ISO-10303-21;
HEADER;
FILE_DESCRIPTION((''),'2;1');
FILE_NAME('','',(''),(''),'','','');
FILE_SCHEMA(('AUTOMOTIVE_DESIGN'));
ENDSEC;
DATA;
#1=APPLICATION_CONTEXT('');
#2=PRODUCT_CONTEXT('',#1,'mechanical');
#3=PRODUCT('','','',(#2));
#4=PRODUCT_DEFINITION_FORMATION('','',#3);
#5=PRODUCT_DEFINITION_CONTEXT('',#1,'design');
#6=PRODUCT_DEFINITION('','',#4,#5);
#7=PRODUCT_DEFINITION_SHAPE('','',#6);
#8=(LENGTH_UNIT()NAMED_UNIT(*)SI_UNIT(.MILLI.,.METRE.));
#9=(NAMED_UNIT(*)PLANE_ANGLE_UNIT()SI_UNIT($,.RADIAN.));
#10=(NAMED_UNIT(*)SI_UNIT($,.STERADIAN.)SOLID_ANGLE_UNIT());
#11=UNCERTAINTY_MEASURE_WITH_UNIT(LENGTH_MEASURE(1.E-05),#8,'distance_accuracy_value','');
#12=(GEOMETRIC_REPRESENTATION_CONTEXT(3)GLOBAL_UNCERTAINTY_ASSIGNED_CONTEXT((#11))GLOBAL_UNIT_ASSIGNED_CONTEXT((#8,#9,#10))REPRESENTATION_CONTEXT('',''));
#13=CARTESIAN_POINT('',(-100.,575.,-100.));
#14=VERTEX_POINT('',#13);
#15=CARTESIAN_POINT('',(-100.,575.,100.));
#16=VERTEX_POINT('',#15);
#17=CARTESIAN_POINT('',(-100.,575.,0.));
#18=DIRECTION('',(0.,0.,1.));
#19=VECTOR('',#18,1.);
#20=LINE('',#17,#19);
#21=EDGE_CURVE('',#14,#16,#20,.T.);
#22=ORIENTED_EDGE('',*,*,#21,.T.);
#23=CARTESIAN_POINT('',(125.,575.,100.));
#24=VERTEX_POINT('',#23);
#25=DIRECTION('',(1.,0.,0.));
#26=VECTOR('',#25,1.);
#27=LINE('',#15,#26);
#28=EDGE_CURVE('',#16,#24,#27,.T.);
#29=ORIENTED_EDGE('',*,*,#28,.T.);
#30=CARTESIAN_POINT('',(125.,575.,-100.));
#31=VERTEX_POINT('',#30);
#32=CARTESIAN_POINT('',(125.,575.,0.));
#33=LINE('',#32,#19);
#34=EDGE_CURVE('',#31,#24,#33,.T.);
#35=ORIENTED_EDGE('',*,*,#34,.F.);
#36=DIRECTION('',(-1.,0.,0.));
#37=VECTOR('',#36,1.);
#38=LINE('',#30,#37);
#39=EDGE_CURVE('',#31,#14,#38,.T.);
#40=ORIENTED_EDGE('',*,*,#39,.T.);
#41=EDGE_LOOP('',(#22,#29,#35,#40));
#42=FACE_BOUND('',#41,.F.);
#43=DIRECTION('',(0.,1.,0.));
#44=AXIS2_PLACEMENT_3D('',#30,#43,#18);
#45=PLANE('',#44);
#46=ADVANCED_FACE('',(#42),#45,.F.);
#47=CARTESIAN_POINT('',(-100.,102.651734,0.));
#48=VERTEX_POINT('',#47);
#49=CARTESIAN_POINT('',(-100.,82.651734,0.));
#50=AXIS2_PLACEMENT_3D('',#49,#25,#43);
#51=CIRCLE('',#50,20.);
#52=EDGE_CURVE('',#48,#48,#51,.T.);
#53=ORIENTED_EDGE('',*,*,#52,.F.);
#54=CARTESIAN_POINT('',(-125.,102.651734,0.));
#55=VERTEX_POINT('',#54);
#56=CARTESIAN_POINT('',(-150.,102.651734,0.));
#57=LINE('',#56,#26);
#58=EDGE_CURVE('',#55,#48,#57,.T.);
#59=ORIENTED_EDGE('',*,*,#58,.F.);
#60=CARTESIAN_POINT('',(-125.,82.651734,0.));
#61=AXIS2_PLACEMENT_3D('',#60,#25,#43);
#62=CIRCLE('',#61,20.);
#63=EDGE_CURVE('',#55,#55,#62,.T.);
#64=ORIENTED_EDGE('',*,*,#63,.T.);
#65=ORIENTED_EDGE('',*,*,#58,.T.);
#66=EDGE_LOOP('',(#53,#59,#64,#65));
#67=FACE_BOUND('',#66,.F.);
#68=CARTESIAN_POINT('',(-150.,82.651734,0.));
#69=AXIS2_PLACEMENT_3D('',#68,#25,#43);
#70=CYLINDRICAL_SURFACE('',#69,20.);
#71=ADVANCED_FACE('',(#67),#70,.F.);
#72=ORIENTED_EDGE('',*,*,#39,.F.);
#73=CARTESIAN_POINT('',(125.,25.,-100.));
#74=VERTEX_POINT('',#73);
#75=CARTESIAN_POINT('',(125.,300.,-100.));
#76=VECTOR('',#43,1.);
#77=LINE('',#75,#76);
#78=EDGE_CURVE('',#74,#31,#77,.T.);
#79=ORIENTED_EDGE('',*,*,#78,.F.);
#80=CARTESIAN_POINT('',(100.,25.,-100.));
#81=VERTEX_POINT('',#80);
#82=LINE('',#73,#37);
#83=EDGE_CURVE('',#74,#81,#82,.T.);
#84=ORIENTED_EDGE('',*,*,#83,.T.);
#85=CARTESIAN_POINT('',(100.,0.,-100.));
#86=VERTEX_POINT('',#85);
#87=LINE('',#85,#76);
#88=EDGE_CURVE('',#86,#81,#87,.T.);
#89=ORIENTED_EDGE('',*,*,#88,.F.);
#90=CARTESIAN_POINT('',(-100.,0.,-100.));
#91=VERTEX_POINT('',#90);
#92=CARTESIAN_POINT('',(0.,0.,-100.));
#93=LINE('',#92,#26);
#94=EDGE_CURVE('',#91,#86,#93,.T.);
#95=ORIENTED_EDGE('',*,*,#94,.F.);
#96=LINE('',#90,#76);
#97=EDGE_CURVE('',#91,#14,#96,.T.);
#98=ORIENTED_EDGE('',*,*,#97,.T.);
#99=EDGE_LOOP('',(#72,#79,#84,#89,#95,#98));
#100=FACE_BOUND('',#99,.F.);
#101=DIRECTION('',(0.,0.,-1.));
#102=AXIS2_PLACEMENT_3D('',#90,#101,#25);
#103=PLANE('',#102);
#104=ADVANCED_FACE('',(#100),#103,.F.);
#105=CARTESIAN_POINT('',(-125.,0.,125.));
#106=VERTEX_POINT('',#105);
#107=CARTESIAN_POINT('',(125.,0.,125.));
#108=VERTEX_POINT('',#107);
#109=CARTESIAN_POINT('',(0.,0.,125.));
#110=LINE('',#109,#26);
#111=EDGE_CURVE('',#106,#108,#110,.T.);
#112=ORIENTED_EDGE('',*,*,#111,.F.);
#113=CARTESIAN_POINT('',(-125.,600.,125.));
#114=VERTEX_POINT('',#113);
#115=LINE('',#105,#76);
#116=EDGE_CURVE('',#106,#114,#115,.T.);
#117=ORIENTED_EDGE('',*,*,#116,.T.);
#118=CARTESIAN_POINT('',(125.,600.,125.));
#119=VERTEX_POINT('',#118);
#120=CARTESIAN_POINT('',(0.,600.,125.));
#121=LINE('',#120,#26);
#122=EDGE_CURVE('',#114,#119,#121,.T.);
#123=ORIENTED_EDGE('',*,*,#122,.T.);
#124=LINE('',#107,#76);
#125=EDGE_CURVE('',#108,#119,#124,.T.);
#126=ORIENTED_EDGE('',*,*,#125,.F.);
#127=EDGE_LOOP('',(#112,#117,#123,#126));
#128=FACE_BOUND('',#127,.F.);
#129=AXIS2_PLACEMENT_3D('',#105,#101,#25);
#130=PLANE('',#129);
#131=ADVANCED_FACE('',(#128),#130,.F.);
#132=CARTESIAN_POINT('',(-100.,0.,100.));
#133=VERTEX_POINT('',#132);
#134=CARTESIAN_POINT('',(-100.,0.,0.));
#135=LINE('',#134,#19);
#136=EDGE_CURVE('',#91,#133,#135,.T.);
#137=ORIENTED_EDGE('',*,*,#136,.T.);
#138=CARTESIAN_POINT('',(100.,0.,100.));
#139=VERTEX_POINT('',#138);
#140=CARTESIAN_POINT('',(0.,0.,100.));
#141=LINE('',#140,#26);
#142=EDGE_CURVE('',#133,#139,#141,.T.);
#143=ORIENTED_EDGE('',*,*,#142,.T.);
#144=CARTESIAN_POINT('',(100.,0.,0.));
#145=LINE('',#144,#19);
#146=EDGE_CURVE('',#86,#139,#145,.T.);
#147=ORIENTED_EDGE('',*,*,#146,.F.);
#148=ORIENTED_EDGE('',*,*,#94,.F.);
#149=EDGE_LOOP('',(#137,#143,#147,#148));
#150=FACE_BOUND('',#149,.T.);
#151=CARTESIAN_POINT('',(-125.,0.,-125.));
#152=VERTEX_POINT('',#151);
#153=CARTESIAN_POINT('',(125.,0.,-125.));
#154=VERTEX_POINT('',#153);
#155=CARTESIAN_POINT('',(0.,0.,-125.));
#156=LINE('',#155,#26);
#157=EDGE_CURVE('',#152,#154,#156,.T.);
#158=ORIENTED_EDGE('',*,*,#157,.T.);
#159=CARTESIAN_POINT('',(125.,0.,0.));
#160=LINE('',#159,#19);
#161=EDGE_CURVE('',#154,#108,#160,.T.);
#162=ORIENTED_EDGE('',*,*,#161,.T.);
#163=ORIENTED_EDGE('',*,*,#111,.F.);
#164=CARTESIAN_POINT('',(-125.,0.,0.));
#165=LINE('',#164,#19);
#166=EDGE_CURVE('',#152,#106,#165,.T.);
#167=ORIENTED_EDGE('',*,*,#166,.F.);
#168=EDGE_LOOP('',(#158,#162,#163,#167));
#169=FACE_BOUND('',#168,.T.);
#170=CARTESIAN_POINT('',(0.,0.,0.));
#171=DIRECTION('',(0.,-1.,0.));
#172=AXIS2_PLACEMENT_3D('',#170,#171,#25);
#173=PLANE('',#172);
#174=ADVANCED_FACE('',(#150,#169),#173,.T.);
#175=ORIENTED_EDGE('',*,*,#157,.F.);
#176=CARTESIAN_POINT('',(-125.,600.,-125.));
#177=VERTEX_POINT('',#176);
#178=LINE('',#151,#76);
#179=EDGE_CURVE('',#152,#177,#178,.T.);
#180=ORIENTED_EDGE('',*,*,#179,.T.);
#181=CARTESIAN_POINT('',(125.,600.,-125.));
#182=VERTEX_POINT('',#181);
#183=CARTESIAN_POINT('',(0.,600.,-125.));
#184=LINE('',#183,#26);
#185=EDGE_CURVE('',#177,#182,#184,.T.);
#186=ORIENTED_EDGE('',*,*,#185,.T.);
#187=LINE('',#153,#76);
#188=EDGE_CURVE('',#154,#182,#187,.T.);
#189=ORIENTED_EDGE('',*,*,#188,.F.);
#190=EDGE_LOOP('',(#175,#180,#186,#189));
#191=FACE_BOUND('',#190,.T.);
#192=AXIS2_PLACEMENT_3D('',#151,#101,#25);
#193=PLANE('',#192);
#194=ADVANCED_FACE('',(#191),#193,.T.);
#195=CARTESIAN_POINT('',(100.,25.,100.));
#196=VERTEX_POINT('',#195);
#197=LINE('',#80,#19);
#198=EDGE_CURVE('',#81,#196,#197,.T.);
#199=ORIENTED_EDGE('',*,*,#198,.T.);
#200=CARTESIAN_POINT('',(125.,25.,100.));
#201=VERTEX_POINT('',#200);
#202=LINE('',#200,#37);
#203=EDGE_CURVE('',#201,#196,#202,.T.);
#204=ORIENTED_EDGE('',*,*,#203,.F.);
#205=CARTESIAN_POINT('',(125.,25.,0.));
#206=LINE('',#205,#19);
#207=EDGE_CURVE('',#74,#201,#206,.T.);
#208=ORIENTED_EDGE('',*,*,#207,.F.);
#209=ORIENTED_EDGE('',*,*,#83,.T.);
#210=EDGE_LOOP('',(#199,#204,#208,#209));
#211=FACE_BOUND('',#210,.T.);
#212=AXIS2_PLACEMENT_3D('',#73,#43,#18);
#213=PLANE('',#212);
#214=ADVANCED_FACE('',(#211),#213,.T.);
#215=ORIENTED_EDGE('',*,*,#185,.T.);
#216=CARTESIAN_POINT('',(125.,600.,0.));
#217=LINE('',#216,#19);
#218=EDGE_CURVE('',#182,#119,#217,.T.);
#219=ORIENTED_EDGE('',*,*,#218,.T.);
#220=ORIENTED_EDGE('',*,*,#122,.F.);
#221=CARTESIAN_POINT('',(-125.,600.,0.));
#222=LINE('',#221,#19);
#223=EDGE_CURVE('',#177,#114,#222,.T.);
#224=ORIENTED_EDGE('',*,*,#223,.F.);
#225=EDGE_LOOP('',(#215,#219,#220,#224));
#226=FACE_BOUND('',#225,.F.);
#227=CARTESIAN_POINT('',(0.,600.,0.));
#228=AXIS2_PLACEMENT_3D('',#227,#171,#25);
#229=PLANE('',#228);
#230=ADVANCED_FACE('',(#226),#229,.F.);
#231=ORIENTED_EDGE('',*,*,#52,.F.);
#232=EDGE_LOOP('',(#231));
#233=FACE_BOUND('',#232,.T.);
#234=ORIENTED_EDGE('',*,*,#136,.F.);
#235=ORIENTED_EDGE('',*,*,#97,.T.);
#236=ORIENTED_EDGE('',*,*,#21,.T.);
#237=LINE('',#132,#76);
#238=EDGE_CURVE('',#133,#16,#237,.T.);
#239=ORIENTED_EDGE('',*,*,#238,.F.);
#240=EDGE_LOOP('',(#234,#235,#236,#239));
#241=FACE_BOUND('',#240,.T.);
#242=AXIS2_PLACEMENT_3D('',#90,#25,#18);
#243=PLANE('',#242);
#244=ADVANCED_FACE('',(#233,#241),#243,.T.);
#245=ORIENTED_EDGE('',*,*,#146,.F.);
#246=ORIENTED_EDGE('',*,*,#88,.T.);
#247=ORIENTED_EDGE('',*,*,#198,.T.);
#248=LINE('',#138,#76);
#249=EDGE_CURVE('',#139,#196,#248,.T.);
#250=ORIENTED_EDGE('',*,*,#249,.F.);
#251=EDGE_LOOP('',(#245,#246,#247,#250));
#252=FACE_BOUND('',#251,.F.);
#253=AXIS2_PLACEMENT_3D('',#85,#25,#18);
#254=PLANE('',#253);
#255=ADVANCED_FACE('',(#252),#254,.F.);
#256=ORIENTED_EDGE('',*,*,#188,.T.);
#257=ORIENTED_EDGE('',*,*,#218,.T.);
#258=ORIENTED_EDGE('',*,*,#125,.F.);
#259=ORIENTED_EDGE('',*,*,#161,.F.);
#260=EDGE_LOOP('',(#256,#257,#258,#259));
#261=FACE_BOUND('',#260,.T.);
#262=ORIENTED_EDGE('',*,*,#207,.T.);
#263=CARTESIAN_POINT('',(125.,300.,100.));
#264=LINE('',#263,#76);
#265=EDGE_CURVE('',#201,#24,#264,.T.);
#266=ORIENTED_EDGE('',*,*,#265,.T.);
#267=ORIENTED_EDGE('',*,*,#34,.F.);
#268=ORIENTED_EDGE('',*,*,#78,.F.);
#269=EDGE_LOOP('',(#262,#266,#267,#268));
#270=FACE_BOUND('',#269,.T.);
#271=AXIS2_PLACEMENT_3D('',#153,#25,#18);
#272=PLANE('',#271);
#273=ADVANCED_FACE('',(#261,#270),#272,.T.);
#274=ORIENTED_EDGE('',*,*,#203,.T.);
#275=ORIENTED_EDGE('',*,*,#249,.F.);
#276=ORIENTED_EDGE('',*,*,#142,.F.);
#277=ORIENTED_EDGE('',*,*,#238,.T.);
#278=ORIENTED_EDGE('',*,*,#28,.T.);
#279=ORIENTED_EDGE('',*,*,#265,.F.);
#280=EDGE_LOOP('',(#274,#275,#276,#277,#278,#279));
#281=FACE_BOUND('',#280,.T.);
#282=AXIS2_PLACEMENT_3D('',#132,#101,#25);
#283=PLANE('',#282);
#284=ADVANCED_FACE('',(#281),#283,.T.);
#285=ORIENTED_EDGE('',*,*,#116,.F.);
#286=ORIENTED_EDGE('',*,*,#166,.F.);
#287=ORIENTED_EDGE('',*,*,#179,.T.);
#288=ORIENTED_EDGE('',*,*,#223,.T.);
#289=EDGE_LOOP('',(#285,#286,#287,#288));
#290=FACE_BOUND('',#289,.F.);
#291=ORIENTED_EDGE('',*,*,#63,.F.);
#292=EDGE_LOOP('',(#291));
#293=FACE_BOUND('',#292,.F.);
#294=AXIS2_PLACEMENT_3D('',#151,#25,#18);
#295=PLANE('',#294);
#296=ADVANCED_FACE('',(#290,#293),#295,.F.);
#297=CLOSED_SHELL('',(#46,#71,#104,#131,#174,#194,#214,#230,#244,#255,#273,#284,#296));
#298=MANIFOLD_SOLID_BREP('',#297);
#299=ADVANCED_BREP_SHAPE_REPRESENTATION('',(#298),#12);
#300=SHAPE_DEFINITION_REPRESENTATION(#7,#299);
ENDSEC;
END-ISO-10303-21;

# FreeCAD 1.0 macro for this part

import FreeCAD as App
import Part
import Sketcher
from FreeCAD import Vector
Q = App.Units.Quantity

doc = App.newDocument("Part")
params = doc.addObject("Spreadsheet::Sheet", "Params")
for row, (alias, value) in enumerate([
    ("sketch1_width", "250 mm"),
    ("pad1_length", "600 mm"),
    ("sketch2_width", "200 mm"),
    ("pocket1_length", "575 mm"),
    ("sketch3_width", "550 mm"),
    ("sketch3_height", "200 mm"),
    ("pocket2_length", "48 mm"),
    ("sketch4_diameter", "40 mm"),
    ("hole_diameter", "40 mm"),
    ("hole_depth", "25 mm"),
], start=1):
    params.set(f"A{row}", alias)
    params.set(f"B{row}", "=" + value)
    params.setAlias(f"B{row}", alias)

body = doc.addObject("PartDesign::Body", "Body")

sketch1 = body.newObject("Sketcher::SketchObject", "Sketch")
sketch1.AttachmentSupport = (doc.getObject("XZ_Plane"), [""])
sketch1.MapMode = "FlatFace"
sketch1.addGeometry([
    Part.LineSegment(Vector(-125, 125, 0), Vector(-125, -125, 0)),
    Part.LineSegment(Vector(-125, -125, 0), Vector(125, -125, 0)),
    Part.LineSegment(Vector(125, -125, 0), Vector(125, 125, 0)),
    Part.LineSegment(Vector(125, 125, 0), Vector(-125, 125, 0)),
], False)
sketch1.addConstraint([
    Sketcher.Constraint("Coincident", 0, 2, 1, 1),
    Sketcher.Constraint("Coincident", 1, 2, 2, 1),
    Sketcher.Constraint("Coincident", 2, 2, 3, 1),
    Sketcher.Constraint("Coincident", 3, 2, 0, 1),
    Sketcher.Constraint("Vertical", 0),
    Sketcher.Constraint("Horizontal", 1),
    Sketcher.Constraint("Vertical", 2),
    Sketcher.Constraint("Horizontal", 3),
    Sketcher.Constraint("Symmetric", 0, 2, 2, 2, -1, 1),
    Sketcher.Constraint("Equal", 3, 0),
    Sketcher.Constraint("DistanceX", 1, 1, 1, 2, Q("250 mm")),
])
sketch1.setExpression("Constraints[10]", "Params.sketch1_width")
pad1 = body.newObject("PartDesign::Pad", "Pad")
pad1.Profile = sketch1
pad1.setExpression("Length", "Params.pad1_length")
pad1.Reversed = True

sketch2 = body.newObject("Sketcher::SketchObject", "Sketch001")
sketch2.AttachmentSupport = (doc.getObject("XZ_Plane"), [""])
sketch2.MapMode = "FlatFace"
sketch2.addGeometry([
    Part.LineSegment(Vector(-100, 100, 0), Vector(-100, -100, 0)),
    Part.LineSegment(Vector(-100, -100, 0), Vector(100, -100, 0)),
    Part.LineSegment(Vector(100, -100, 0), Vector(100, 100, 0)),
    Part.LineSegment(Vector(100, 100, 0), Vector(-100, 100, 0)),
], False)
sketch2.addConstraint([
    Sketcher.Constraint("Coincident", 0, 2, 1, 1),
    Sketcher.Constraint("Coincident", 1, 2, 2, 1),
    Sketcher.Constraint("Coincident", 2, 2, 3, 1),
    Sketcher.Constraint("Coincident", 3, 2, 0, 1),
    Sketcher.Constraint("Vertical", 0),
    Sketcher.Constraint("Horizontal", 1),
    Sketcher.Constraint("Vertical", 2),
    Sketcher.Constraint("Horizontal", 3),
    Sketcher.Constraint("Symmetric", 0, 2, 2, 2, -1, 1),
    Sketcher.Constraint("Equal", 3, 0),
    Sketcher.Constraint("DistanceX", 1, 1, 1, 2, Q("200 mm")),
])
sketch2.setExpression("Constraints[10]", "Params.sketch2_width")
pocket1 = body.newObject("PartDesign::Pocket", "Pocket")
pocket1.Profile = sketch2
pocket1.setExpression("Length", "Params.pocket1_length")

sketch3 = body.newObject("Sketcher::SketchObject", "Sketch002")
sketch3.AttachmentSupport = (doc.getObject("YZ_Plane"), [""])
sketch3.MapMode = "FlatFace"
sketch3.AttachmentOffset = App.Placement(Vector(0, 0, 125), App.Rotation())
sketch3.addGeometry([
    Part.LineSegment(Vector(25, 100, 0), Vector(25, -100, 0)),
    Part.LineSegment(Vector(25, -100, 0), Vector(575, -100, 0)),
    Part.LineSegment(Vector(575, -100, 0), Vector(575, 100, 0)),
    Part.LineSegment(Vector(575, 100, 0), Vector(25, 100, 0)),
], False)
sketch3.addConstraint([
    Sketcher.Constraint("Coincident", 0, 2, 1, 1),
    Sketcher.Constraint("Coincident", 1, 2, 2, 1),
    Sketcher.Constraint("Coincident", 2, 2, 3, 1),
    Sketcher.Constraint("Coincident", 3, 2, 0, 1),
    Sketcher.Constraint("Vertical", 0),
    Sketcher.Constraint("Horizontal", 1),
    Sketcher.Constraint("Vertical", 2),
    Sketcher.Constraint("Horizontal", 3),
    Sketcher.Constraint("DistanceX", 1, 1, 1, 2, Q("550 mm")),
    Sketcher.Constraint("DistanceY", 0, 2, 0, 1, Q("200 mm")),
    Sketcher.Constraint("DistanceX", -1, 1, 0, 2, Q("25 mm")),
    Sketcher.Constraint("DistanceY", 0, 2, -1, 1, Q("100 mm")),
])
sketch3.setExpression("Constraints[8]", "Params.sketch3_width")
sketch3.setExpression("Constraints[9]", "Params.sketch3_height")
pocket2 = body.newObject("PartDesign::Pocket", "Pocket001")
pocket2.Profile = sketch3
pocket2.setExpression("Length", "Params.pocket2_length")

sketch4 = body.newObject("Sketcher::SketchObject", "Sketch003")
sketch4.AttachmentSupport = (doc.getObject("YZ_Plane"), [""])
sketch4.MapMode = "FlatFace"
sketch4.AttachmentOffset = App.Placement(Vector(0, 0, -125), App.Rotation())
sketch4.addGeometry(Part.Circle(Vector(83, 0, 0), Vector(0, 0, 1), 20), False)
sketch4.addConstraint([
    Sketcher.Constraint("PointOnObject", 0, 3, -1),
    Sketcher.Constraint("Diameter", 0, Q("40 mm")),
    Sketcher.Constraint("DistanceX", -1, 1, 0, 3, Q("82.651734 mm")),
])
sketch4.setExpression("Constraints[1]", "Params.sketch4_diameter")
doc.recompute()
hole = body.newObject("PartDesign::Hole", "Hole")
hole.Profile = sketch4
hole.ThreadType = "None"
hole.setExpression("Diameter", "Params.hole_diameter")
hole.DepthType = "Dimension"
hole.setExpression("Depth", "Params.hole_depth")
hole.DrillPoint = "Flat"
hole.Reversed = True

doc.recompute()
